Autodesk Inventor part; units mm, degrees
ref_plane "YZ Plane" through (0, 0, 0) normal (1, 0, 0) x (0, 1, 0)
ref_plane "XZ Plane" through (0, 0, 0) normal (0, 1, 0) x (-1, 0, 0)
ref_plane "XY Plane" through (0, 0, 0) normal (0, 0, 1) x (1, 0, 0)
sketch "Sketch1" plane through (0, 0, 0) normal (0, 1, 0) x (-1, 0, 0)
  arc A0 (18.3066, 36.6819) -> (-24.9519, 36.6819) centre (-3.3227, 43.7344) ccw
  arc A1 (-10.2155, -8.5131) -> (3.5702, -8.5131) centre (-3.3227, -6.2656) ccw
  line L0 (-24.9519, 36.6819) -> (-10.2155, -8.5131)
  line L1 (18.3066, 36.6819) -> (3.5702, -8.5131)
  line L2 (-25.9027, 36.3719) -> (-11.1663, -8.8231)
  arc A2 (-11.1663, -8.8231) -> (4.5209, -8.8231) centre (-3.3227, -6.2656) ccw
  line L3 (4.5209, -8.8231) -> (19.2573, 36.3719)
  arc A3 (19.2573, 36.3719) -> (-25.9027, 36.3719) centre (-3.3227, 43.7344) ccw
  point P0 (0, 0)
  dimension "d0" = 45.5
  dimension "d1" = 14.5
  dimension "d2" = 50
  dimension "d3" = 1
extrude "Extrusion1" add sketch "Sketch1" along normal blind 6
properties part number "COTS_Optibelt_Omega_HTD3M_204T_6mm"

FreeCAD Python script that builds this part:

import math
import FreeCAD as App
import Part
import Sketcher

doc = App.newDocument("Part")
body = doc.addObject("PartDesign::Body", "Body")

# Sketch on XZ plane
sketch1 = doc.addObject("Sketcher::SketchObject", "Sketch")
body.addObject(sketch1)
sketch1.AttachmentSupport = (doc.XZ_Plane, [""])
sketch1.MapMode = "FlatFace"
sketch1.addGeometry([
    Part.ArcOfCircle(Part.Circle(App.Vector(3, 44, 0), App.Vector(0, 0, 1), 24), math.radians(-18), math.radians(198)),  # 0
    Part.LineSegment(App.Vector(26, 36, 0), App.Vector(11, -9, 0)),  # 1
    Part.ArcOfCircle(Part.Circle(App.Vector(3, -6, 0), App.Vector(0, 0, 1), 8), math.radians(-162), math.radians(-18)),  # 2
    Part.LineSegment(App.Vector(-5, -9, 0), App.Vector(-19, 36, 0)),  # 3
    Part.ArcOfCircle(Part.Circle(App.Vector(3, 44, 0), App.Vector(0, 0, 1), 23), math.radians(-18), math.radians(198)),  # 4
    Part.LineSegment(App.Vector(-18, 37, 0), App.Vector(-4, -9, 0)),  # 5
    Part.ArcOfCircle(Part.Circle(App.Vector(3, -6, 0), App.Vector(0, 0, 1), 7), math.radians(-162), math.radians(-18)),  # 6
    Part.LineSegment(App.Vector(10, -9, 0), App.Vector(25, 37, 0)),  # 7
], False)
sketch1.addConstraint([
    Sketcher.Constraint("Tangent", 0, 1, 1, 1),
    Sketcher.Constraint("Tangent", 1, 2, 2, 2),
    Sketcher.Constraint("Tangent", 2, 1, 3, 1),
    Sketcher.Constraint("Tangent", 3, 2, 0, 2),
    Sketcher.Constraint("Tangent", 4, 2, 5, 1),
    Sketcher.Constraint("Tangent", 5, 2, 6, 1),
    Sketcher.Constraint("Tangent", 6, 2, 7, 1),
    Sketcher.Constraint("Tangent", 7, 2, 4, 1),
    Sketcher.Constraint("Coincident", 4, 3, 0, 3),
    Sketcher.Constraint("Coincident", 6, 3, 2, 3),
    Sketcher.Constraint("Parallel", 3, 5),
    Sketcher.Constraint("Horizontal", 1, 2, 2, 1),
    Sketcher.Constraint("Radius", 4, 22.75),
    Sketcher.Constraint("Radius", 6, 7.25),
    Sketcher.Constraint("DistanceY", 2, 3, 0, 3, 50.0),
    Sketcher.Constraint("Radius", 0, 23.75),
    Sketcher.Constraint("DistanceY", -1, 1, 0, 1, 36.372),
    Sketcher.Constraint("DistanceX", 2, 1, -1, 1, 4.521),
])
pad1 = doc.addObject("PartDesign::Pad", "Pad")
body.addObject(pad1)
pad1.Profile = sketch1
pad1.Length = 6
pad1.Reversed = True

doc.recompute()
